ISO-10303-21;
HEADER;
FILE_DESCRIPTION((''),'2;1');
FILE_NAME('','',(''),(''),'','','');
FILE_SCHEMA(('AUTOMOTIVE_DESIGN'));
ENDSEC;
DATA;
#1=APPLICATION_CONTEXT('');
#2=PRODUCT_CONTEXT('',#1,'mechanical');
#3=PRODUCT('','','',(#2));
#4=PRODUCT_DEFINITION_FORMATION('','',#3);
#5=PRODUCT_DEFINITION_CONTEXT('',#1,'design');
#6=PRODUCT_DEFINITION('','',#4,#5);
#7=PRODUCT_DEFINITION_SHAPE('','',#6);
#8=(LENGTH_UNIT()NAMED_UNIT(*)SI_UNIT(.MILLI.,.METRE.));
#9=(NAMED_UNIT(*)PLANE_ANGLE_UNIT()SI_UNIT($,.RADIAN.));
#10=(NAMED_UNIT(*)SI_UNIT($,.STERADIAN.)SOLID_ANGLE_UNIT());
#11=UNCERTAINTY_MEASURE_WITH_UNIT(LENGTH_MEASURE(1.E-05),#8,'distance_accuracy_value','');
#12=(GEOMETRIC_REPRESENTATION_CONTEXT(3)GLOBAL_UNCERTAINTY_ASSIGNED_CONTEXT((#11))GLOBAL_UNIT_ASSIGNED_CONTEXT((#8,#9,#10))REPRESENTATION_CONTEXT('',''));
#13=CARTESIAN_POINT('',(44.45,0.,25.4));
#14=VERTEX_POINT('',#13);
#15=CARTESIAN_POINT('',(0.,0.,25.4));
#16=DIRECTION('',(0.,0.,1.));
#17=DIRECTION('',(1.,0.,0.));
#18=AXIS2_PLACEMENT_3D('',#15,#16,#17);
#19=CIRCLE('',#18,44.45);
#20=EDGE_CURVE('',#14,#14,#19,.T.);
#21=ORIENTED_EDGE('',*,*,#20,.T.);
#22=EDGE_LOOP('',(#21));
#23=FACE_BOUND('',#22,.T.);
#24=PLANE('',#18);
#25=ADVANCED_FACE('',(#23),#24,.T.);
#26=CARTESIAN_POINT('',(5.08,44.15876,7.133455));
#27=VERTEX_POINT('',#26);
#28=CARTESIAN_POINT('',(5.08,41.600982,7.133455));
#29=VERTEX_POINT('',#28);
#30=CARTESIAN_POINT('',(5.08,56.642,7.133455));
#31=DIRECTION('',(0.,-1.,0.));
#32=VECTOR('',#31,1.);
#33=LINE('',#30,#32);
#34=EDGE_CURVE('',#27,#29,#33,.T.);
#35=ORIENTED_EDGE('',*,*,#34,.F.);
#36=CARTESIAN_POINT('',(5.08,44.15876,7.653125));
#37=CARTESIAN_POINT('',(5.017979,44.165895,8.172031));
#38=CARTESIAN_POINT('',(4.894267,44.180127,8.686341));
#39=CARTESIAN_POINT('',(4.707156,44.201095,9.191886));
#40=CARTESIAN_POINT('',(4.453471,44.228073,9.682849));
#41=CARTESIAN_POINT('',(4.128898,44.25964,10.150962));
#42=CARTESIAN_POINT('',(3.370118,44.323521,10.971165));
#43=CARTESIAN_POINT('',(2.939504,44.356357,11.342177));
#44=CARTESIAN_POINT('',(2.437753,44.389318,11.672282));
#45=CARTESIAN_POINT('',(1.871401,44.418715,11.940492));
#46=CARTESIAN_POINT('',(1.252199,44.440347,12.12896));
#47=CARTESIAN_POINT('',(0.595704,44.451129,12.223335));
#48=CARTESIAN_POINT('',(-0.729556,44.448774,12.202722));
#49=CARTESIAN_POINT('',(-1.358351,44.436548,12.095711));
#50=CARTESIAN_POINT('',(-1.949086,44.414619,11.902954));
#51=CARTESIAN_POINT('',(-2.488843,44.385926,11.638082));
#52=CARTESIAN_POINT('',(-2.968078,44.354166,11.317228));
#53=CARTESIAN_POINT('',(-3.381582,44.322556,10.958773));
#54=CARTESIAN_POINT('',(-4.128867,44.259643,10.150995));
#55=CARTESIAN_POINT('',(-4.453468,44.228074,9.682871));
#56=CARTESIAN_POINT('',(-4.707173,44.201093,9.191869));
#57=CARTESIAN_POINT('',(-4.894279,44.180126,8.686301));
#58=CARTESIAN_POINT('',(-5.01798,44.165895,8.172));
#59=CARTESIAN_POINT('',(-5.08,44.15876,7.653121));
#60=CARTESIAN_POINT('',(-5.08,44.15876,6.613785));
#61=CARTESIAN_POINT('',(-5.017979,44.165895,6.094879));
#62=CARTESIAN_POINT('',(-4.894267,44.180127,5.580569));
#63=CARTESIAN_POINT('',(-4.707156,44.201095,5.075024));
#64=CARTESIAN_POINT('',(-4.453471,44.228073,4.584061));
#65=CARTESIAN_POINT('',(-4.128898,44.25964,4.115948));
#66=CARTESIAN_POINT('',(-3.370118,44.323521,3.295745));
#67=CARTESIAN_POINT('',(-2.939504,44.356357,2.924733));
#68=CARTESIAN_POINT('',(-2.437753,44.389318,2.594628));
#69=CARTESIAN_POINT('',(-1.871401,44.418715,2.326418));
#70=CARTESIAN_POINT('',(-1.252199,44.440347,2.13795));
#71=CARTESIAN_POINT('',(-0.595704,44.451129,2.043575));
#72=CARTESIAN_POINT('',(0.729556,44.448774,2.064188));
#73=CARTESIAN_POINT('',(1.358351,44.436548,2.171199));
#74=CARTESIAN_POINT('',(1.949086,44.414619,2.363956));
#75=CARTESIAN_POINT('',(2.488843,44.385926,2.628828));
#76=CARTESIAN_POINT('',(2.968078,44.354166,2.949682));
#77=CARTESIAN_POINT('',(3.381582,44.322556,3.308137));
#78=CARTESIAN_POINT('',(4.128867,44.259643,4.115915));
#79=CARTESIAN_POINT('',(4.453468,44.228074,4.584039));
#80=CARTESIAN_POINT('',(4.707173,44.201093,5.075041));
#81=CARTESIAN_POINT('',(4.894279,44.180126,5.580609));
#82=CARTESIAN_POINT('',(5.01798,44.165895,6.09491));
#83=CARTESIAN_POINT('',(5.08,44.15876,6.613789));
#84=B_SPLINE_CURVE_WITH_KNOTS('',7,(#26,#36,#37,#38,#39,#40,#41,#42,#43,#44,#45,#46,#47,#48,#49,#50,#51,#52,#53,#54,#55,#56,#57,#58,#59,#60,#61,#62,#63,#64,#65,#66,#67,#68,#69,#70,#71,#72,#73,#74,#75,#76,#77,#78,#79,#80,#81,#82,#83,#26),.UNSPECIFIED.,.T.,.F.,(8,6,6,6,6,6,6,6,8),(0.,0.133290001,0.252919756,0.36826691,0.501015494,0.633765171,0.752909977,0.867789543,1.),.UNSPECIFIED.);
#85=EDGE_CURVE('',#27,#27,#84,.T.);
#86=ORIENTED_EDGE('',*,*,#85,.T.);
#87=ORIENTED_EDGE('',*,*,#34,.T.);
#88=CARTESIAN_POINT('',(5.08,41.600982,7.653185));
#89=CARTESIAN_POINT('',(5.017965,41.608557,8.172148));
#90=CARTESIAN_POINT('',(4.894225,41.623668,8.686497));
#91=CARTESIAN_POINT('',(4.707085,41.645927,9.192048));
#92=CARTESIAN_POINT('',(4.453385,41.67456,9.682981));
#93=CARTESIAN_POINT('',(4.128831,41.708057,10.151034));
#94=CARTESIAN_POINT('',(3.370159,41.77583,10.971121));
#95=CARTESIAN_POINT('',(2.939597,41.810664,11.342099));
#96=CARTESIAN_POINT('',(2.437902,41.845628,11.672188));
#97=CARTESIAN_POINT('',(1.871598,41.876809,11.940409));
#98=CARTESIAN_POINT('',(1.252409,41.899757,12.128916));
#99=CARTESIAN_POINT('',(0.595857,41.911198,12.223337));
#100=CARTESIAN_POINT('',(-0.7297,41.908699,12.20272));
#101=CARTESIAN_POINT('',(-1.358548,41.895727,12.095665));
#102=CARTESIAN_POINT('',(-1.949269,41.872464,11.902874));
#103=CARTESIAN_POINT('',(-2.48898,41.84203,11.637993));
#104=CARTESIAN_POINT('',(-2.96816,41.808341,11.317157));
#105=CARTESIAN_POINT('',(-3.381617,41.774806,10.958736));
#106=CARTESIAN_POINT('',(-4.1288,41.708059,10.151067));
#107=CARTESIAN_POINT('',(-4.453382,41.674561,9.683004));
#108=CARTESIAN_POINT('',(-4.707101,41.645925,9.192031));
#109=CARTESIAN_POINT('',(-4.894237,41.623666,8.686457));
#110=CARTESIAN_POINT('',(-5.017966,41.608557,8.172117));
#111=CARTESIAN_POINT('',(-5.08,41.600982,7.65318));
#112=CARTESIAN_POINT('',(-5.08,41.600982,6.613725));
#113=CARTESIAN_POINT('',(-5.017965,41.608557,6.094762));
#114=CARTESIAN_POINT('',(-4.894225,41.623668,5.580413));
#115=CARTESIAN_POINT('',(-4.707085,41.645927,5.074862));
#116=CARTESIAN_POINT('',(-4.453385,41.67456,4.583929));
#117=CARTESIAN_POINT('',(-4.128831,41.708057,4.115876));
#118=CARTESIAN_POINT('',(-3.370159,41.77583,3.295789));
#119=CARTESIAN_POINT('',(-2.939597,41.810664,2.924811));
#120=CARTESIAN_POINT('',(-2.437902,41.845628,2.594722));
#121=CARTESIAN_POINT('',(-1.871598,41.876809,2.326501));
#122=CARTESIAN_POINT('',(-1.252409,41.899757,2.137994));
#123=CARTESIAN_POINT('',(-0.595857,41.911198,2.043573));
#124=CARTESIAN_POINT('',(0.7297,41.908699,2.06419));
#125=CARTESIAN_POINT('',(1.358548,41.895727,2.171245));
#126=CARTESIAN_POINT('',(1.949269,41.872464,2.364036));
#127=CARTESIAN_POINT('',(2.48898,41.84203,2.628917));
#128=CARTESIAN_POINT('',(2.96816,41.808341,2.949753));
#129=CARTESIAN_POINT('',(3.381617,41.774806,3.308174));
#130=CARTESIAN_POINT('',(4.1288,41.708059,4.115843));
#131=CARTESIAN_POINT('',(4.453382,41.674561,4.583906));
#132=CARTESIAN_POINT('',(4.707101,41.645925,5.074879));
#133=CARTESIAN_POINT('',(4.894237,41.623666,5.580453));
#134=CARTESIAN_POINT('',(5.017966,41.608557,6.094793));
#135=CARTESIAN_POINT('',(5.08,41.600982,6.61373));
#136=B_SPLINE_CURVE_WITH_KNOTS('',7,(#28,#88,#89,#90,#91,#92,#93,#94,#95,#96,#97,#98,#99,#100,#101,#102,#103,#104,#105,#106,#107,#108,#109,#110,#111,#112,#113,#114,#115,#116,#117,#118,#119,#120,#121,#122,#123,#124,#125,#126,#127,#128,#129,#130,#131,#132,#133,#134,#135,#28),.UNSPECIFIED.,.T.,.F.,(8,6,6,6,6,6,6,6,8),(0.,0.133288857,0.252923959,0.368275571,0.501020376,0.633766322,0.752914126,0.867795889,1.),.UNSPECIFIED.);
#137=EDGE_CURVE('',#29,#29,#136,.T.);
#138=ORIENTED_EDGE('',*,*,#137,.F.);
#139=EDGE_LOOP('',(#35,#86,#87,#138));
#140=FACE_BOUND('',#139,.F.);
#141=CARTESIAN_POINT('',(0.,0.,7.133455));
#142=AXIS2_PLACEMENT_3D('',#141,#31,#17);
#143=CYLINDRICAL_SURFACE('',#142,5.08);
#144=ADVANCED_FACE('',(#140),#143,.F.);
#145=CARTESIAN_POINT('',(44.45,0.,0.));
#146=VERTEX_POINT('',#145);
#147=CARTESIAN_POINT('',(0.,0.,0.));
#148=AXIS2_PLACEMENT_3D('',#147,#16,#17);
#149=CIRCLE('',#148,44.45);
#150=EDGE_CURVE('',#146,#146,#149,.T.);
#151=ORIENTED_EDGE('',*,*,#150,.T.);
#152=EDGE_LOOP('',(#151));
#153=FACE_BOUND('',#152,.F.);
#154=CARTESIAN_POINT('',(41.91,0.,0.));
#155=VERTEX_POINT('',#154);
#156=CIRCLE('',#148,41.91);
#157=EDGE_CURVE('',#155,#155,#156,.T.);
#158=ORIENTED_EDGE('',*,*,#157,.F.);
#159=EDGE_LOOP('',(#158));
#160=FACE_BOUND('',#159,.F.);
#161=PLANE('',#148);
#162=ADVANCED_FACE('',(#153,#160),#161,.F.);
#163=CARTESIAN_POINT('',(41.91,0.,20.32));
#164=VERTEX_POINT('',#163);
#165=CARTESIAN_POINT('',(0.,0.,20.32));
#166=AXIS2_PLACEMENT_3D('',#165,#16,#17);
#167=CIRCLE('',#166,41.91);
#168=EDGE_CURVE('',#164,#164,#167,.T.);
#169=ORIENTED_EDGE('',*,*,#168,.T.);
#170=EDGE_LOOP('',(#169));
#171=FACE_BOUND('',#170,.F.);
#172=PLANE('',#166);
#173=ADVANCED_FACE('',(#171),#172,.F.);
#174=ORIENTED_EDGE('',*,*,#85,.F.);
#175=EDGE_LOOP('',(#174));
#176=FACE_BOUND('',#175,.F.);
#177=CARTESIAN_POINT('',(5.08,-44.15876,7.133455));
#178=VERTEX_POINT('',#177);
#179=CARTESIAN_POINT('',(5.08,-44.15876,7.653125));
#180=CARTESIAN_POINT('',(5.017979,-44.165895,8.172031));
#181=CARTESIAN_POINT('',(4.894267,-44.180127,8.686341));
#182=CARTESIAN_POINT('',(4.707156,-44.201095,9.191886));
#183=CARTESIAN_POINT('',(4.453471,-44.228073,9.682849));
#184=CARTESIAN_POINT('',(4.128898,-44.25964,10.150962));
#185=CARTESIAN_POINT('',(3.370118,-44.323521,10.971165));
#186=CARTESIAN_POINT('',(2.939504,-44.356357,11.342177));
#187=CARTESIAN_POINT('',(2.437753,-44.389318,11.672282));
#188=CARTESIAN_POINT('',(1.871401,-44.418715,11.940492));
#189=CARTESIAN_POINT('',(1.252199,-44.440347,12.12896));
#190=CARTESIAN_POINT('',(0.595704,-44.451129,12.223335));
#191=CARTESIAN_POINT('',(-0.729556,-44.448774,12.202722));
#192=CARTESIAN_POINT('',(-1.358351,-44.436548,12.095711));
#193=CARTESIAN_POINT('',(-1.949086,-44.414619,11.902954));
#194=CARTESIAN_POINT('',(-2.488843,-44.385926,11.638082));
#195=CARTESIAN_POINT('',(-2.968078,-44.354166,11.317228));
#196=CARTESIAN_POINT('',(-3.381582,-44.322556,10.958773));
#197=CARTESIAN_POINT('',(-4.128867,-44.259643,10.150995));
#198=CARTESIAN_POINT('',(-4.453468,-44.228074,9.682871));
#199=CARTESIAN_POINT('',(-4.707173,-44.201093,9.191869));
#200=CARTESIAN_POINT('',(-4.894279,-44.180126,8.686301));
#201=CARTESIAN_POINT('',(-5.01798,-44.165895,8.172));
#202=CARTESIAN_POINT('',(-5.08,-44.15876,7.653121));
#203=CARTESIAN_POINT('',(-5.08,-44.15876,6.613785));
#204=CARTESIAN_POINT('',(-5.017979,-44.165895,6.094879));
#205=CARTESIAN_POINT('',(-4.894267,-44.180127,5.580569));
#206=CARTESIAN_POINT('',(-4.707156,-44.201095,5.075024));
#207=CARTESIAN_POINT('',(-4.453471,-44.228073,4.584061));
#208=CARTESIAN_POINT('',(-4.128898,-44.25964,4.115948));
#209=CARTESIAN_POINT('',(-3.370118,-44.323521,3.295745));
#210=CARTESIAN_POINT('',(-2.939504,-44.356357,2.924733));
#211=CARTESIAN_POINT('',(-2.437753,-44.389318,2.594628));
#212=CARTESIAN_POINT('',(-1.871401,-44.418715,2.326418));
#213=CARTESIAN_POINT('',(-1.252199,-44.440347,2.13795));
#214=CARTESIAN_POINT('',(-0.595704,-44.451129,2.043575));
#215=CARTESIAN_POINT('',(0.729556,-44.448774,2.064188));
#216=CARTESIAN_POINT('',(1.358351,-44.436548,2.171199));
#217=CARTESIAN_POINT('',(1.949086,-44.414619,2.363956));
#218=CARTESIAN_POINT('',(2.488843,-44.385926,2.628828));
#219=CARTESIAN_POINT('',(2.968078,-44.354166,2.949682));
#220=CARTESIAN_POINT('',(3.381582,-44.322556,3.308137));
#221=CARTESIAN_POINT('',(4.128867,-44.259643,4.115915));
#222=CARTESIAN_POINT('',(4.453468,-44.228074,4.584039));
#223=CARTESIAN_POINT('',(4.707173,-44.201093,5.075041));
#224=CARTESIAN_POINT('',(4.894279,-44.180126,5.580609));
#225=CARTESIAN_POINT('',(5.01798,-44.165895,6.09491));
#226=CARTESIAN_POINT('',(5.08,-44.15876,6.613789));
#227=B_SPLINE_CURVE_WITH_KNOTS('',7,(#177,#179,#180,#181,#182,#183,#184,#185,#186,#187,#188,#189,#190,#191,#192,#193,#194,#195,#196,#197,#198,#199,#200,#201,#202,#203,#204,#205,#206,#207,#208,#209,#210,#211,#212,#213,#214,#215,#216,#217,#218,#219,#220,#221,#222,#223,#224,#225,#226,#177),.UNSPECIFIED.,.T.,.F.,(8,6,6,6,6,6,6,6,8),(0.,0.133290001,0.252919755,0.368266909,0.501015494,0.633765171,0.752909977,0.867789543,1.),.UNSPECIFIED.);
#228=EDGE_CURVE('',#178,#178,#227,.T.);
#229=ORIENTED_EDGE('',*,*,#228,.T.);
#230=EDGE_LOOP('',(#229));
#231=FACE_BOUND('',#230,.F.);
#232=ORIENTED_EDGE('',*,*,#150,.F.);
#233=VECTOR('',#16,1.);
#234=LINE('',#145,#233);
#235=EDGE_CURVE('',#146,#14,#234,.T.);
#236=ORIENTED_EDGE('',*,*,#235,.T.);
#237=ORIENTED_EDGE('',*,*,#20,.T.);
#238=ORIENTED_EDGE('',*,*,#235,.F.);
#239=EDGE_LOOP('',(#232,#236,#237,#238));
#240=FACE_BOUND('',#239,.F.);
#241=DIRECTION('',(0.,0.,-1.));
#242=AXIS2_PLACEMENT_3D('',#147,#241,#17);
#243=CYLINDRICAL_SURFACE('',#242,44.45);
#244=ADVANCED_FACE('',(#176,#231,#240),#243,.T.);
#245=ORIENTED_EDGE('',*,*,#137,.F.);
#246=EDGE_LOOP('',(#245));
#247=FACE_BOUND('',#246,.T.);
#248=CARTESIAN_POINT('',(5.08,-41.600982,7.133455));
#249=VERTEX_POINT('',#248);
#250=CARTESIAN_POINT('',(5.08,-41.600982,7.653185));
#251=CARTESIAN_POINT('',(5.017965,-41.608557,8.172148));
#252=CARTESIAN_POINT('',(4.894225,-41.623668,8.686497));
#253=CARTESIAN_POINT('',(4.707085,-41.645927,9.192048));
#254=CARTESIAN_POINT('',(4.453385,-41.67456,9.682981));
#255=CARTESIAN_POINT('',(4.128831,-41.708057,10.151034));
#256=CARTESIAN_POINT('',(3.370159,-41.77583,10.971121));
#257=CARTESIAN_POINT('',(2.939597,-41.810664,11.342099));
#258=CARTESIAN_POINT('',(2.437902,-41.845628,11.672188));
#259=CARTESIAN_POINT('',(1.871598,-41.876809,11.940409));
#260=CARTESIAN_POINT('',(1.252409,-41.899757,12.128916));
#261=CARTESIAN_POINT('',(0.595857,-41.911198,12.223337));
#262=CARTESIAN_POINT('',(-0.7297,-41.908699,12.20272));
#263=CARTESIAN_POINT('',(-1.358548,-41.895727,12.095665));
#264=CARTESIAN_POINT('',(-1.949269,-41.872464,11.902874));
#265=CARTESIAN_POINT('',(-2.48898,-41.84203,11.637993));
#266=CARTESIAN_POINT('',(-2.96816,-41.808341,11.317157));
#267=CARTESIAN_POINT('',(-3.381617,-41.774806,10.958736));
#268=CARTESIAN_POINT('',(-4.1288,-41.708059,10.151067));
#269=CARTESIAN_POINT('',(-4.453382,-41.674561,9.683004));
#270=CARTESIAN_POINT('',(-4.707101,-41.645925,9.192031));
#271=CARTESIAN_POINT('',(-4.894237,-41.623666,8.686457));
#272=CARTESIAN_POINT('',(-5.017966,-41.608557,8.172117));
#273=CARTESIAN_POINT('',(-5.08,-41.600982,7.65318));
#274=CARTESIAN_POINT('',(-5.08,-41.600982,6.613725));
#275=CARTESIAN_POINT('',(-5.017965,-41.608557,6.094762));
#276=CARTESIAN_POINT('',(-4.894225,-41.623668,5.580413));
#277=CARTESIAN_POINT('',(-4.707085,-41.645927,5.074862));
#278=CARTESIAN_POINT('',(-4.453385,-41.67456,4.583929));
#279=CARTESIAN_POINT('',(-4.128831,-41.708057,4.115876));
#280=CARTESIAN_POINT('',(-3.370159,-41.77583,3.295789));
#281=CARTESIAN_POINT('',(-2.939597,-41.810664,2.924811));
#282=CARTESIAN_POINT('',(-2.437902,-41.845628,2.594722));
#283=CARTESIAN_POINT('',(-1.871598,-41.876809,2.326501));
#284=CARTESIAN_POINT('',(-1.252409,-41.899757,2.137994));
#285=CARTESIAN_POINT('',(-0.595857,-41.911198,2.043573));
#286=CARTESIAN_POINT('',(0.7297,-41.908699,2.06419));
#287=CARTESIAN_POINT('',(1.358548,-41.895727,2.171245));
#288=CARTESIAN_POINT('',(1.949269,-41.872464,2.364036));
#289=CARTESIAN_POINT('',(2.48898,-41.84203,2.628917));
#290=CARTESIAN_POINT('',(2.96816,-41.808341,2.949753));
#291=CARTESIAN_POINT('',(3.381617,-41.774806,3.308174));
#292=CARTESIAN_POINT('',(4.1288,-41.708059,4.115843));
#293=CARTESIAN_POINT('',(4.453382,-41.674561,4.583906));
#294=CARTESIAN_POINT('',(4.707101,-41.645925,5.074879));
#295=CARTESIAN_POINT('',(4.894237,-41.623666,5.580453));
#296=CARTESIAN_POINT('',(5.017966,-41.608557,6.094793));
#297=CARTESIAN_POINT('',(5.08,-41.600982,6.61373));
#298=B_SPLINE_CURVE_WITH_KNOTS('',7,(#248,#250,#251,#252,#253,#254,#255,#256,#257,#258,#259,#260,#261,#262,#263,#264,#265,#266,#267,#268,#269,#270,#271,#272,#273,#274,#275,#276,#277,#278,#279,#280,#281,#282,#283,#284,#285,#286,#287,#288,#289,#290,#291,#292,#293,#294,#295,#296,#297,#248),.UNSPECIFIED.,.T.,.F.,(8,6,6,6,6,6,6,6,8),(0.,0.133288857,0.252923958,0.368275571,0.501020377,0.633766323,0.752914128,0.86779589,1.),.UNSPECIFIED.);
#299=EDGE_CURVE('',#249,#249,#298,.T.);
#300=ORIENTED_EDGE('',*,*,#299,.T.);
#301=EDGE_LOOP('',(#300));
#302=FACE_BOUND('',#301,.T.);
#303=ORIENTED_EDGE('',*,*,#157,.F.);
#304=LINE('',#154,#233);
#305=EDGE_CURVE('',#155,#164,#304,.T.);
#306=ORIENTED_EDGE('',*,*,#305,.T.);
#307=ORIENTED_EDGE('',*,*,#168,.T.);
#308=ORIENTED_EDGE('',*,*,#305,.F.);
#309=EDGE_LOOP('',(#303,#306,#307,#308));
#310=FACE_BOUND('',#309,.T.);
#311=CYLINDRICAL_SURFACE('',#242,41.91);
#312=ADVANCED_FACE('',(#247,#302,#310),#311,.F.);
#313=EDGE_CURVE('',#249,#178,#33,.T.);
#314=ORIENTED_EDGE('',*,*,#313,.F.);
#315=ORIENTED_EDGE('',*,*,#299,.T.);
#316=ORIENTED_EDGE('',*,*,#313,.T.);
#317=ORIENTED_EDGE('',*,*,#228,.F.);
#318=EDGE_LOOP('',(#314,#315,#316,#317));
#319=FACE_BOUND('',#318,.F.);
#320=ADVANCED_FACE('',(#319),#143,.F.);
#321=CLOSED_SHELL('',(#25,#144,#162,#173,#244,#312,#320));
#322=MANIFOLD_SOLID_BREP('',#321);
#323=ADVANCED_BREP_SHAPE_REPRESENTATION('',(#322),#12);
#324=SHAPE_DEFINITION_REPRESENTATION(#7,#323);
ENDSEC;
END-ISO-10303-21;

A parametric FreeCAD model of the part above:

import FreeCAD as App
import Part
import Sketcher
from FreeCAD import Vector
Q = App.Units.Quantity

doc = App.newDocument("Part")
params = doc.addObject("Spreadsheet::Sheet", "Params")
for row, (alias, value) in enumerate([
    ("sketch1_diameter", "3.5 in"),
    ("sketch1_diameter2", "3.3 in"),
    ("pad1_length", "1 in"),
    ("sketch2_diameter", "3.3 in"),
    ("pad2_length", "0.2 in"),
    ("sketch3_diameter", "0.4 in"),
    ("pocket1_length", "4.46 in"),
], start=1):
    params.set(f"A{row}", alias)
    params.set(f"B{row}", "=" + value)
    params.setAlias(f"B{row}", alias)

body = doc.addObject("PartDesign::Body", "Body")

# Sketch on XY plane
sketch1 = body.newObject("Sketcher::SketchObject", "Sketch")
sketch1.AttachmentSupport = (doc.getObject("XY_Plane"), [""])
sketch1.MapMode = "FlatFace"
sketch1.addGeometry([
    Part.Circle(Vector(0, 0, 0), Vector(0, 0, 1), 44),
    Part.Circle(Vector(0, 0, 0), Vector(0, 0, 1), 42),
], False)
sketch1.addConstraint([
    Sketcher.Constraint("Coincident", 0, 3, -1, 1),
    Sketcher.Constraint("Coincident", 1, 3, -1, 1),
    Sketcher.Constraint("Diameter", 0, Q("3.5 in")),
    Sketcher.Constraint("Diameter", 1, Q("3.3 in")),
])
sketch1.setExpression("Constraints[2]", "Params.sketch1_diameter")
sketch1.setExpression("Constraints[3]", "Params.sketch1_diameter2")
pad1 = body.newObject("PartDesign::Pad", "Pad")
pad1.Profile = sketch1
pad1.setExpression("Length", "Params.pad1_length")

# Sketch on XY plane
sketch2 = body.newObject("Sketcher::SketchObject", "Sketch001")
sketch2.AttachmentSupport = (doc.getObject("XY_Plane"), [""])
sketch2.MapMode = "FlatFace"
sketch2.AttachmentOffset = App.Placement(Vector(0, 0, 1 * 25.4), App.Rotation())
sketch2.addGeometry(Part.Circle(Vector(0, 0, 0), Vector(0, 0, 1), 42), False)
sketch2.addConstraint([
    Sketcher.Constraint("Coincident", 0, 3, -1, 1),
    Sketcher.Constraint("Diameter", 0, Q("3.3 in")),
])
sketch2.setExpression("Constraints[1]", "Params.sketch2_diameter")
pad2 = body.newObject("PartDesign::Pad", "Pad001")
pad2.Profile = sketch2
pad2.setExpression("Length", "Params.pad2_length")
pad2.Reversed = True

# Sketch on XZ plane
sketch3 = body.newObject("Sketcher::SketchObject", "Sketch002")
sketch3.AttachmentSupport = (doc.getObject("XZ_Plane"), [""])
sketch3.MapMode = "FlatFace"
sketch3.addGeometry(Part.Circle(Vector(0, 7, 0), Vector(0, 0, 1), 5), False)
sketch3.addConstraint([
    Sketcher.Constraint("PointOnObject", 0, 3, -2),
    Sketcher.Constraint("Diameter", 0, Q("0.4 in")),
    Sketcher.Constraint("DistanceY", -1, 1, 0, 3, 7.133455),
])
sketch3.setExpression("Constraints[1]", "Params.sketch3_diameter")
pocket1 = body.newObject("PartDesign::Pocket", "Pocket")
pocket1.Profile = sketch3
pocket1.setExpression("Length", "Params.pocket1_length")
pocket1.Midplane = True

doc.recompute()
